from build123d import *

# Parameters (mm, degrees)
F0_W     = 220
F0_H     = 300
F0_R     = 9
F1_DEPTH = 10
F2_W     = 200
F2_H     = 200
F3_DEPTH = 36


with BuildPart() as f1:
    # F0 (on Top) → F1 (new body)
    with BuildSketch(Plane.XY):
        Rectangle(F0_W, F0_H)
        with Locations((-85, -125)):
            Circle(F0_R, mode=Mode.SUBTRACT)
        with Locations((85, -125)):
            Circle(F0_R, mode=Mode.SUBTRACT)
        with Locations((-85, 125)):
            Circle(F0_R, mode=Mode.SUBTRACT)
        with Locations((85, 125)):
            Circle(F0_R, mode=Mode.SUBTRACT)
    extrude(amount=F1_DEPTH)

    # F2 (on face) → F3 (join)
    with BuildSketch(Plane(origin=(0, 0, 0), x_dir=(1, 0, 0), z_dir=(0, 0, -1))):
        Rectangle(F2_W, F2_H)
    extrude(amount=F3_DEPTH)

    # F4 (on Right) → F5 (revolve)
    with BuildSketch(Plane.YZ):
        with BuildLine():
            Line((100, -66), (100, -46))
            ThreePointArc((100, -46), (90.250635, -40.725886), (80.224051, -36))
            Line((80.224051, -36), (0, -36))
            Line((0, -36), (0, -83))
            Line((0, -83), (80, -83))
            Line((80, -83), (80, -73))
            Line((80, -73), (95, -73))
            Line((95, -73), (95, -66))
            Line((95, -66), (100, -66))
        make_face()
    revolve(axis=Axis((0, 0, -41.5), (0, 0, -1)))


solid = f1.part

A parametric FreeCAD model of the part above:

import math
import FreeCAD as App
import Part
import Sketcher
from FreeCAD import Vector

doc = App.newDocument("Part")
body = doc.addObject("PartDesign::Body", "Body")

# Sketch on XY plane
sketch1 = body.newObject("Sketcher::SketchObject", "Sketch")
sketch1.AttachmentSupport = (doc.getObject("XY_Plane"), [""])
sketch1.MapMode = "FlatFace"
sketch1.addGeometry([
    Part.LineSegment(Vector(-110, 150, 0), Vector(-110, -150, 0)),  # 0
    Part.LineSegment(Vector(-110, -150, 0), Vector(110, -150, 0)),  # 1
    Part.LineSegment(Vector(110, -150, 0), Vector(110, 150, 0)),  # 2
    Part.LineSegment(Vector(110, 150, 0), Vector(-110, 150, 0)),  # 3
    Part.Circle(Vector(-85, -125, 0), Vector(0, 0, 1), 9),  # 4
    Part.Circle(Vector(85, -125, 0), Vector(0, 0, 1), 9),  # 5
    Part.Circle(Vector(-85, 125, 0), Vector(0, 0, 1), 9),  # 6
    Part.Circle(Vector(85, 125, 0), Vector(0, 0, 1), 9),  # 7
], False)
sketch1.addConstraint([
    Sketcher.Constraint("Coincident", 0, 2, 1, 1),
    Sketcher.Constraint("Coincident", 1, 2, 2, 1),
    Sketcher.Constraint("Coincident", 2, 2, 3, 1),
    Sketcher.Constraint("Coincident", 3, 2, 0, 1),
    Sketcher.Constraint("Vertical", 0),
    Sketcher.Constraint("Horizontal", 1),
    Sketcher.Constraint("Vertical", 2),
    Sketcher.Constraint("Horizontal", 3),
    Sketcher.Constraint("Equal", 4, 5),
    Sketcher.Constraint("Equal", 5, 6),
    Sketcher.Constraint("Equal", 6, 7),
    Sketcher.Constraint("Symmetric", 5, 3, 6, 3, -1, 1),
    Sketcher.Constraint("Symmetric", 4, 3, 7, 3, -1, 1),
    Sketcher.Constraint("Symmetric", 0, 2, 2, 2, -1, 1),
    Sketcher.Constraint("Symmetric", 4, 3, 5, 3, -2),
    Sketcher.Constraint("Diameter", 4, 18.0),
    Sketcher.Constraint("DistanceX", 1, 1, 1, 2, 220.0),
    Sketcher.Constraint("DistanceY", 0, 2, 0, 1, 300.0),
    Sketcher.Constraint("DistanceX", 4, 3, -1, 1, 85.0),
    Sketcher.Constraint("DistanceY", 4, 3, -1, 1, 125.0),
])
pad1 = body.newObject("PartDesign::Pad", "Pad")
pad1.Profile = sketch1
pad1.Length = 10

# Sketch on XY plane
sketch2 = body.newObject("Sketcher::SketchObject", "Sketch001")
sketch2.AttachmentSupport = (doc.getObject("XY_Plane"), [""])
sketch2.MapMode = "FlatFace"
sketch2.addGeometry([
    Part.LineSegment(Vector(-100, -100, 0), Vector(-100, 100, 0)),
    Part.LineSegment(Vector(-100, 100, 0), Vector(100, 100, 0)),
    Part.LineSegment(Vector(100, 100, 0), Vector(100, -100, 0)),
    Part.LineSegment(Vector(100, -100, 0), Vector(-100, -100, 0)),
], False)
sketch2.addConstraint([
    Sketcher.Constraint("Coincident", 0, 2, 1, 1),
    Sketcher.Constraint("Coincident", 1, 2, 2, 1),
    Sketcher.Constraint("Coincident", 2, 2, 3, 1),
    Sketcher.Constraint("Coincident", 3, 2, 0, 1),
    Sketcher.Constraint("Vertical", 0),
    Sketcher.Constraint("Horizontal", 1),
    Sketcher.Constraint("Vertical", 2),
    Sketcher.Constraint("Horizontal", 3),
    Sketcher.Constraint("Symmetric", 0, 2, 2, 2, -1, 1),
    Sketcher.Constraint("Equal", 3, 0),
    Sketcher.Constraint("DistanceX", 1, 1, 1, 2, 200.0),
])
pad2 = body.newObject("PartDesign::Pad", "Pad001")
pad2.Profile = sketch2
pad2.Length = 36
pad2.Reversed = True

# Sketch on YZ plane
sketch3 = body.newObject("Sketcher::SketchObject", "Sketch002")
sketch3.AttachmentSupport = (doc.getObject("YZ_Plane"), [""])
sketch3.MapMode = "FlatFace"
sketch3.addGeometry([
    Part.LineSegment(Vector(100, -66, 0), Vector(100, -46, 0)),  # 0
    Part.ArcOfCircle(Part.Circle(Vector(0, -219, 0), Vector(0, 0, 1), 200), math.radians(60), math.radians(66.35)),  # 1
    Part.LineSegment(Vector(80, -36, 0), Vector(0, -36, 0)),  # 2
    Part.LineSegment(Vector(0, -36, 0), Vector(0, -83, 0)),  # 3
    Part.LineSegment(Vector(0, -83, 0), Vector(80, -83, 0)),  # 4
    Part.LineSegment(Vector(80, -83, 0), Vector(80, -73, 0)),  # 5
    Part.LineSegment(Vector(80, -73, 0), Vector(95, -73, 0)),  # 6
    Part.LineSegment(Vector(95, -73, 0), Vector(95, -66, 0)),  # 7
    Part.LineSegment(Vector(95, -66, 0), Vector(100, -66, 0)),  # 8
], False)
sketch3.addConstraint([
    Sketcher.Constraint("Coincident", 0, 2, 1, 1),
    Sketcher.Constraint("Coincident", 1, 2, 2, 1),
    Sketcher.Constraint("Coincident", 2, 2, 3, 1),
    Sketcher.Constraint("Coincident", 3, 2, 4, 1),
    Sketcher.Constraint("Coincident", 4, 2, 5, 1),
    Sketcher.Constraint("Coincident", 5, 2, 6, 1),
    Sketcher.Constraint("Coincident", 6, 2, 7, 1),
    Sketcher.Constraint("Coincident", 7, 2, 8, 1),
    Sketcher.Constraint("Coincident", 8, 2, 0, 1),
    Sketcher.Constraint("Vertical", 0),
    Sketcher.Constraint("Horizontal", 2),
    Sketcher.Constraint("Vertical", 3),
    Sketcher.Constraint("Horizontal", 4),
    Sketcher.Constraint("Vertical", 5),
    Sketcher.Constraint("Horizontal", 6),
    Sketcher.Constraint("Vertical", 7),
    Sketcher.Constraint("Horizontal", 8),
    Sketcher.Constraint("PointOnObject", 2, 2, -2),
    Sketcher.Constraint("DistanceX", 4, 1, 4, 2, 80.0),
    Sketcher.Constraint("DistanceX", 6, 1, 6, 2, 15.0),
    Sketcher.Constraint("DistanceX", 8, 1, 8, 2, 5.0),
    Sketcher.Constraint("DistanceY", 0, 1, 0, 2, 20.0),
    Sketcher.Constraint("DistanceY", 3, 2, 3, 1, 47.0),
    Sketcher.Constraint("DistanceY", 5, 1, 5, 2, 10.0),
    Sketcher.Constraint("DistanceY", 7, 1, 7, 2, 7.0),
    Sketcher.Constraint("DistanceY", 0, 2, -1, 1, 46.0),
    Sketcher.Constraint("Radius", 1, 199.99985),
    Sketcher.Constraint("DistanceX", 2, 2, 2, 1, 80.224051),
])
revolution = body.newObject("PartDesign::Revolution", "Revolution")
revolution.Profile = sketch3
revolution.ReferenceAxis = (sketch3, ["V_Axis"])
revolution.Angle = 360

doc.recompute()
